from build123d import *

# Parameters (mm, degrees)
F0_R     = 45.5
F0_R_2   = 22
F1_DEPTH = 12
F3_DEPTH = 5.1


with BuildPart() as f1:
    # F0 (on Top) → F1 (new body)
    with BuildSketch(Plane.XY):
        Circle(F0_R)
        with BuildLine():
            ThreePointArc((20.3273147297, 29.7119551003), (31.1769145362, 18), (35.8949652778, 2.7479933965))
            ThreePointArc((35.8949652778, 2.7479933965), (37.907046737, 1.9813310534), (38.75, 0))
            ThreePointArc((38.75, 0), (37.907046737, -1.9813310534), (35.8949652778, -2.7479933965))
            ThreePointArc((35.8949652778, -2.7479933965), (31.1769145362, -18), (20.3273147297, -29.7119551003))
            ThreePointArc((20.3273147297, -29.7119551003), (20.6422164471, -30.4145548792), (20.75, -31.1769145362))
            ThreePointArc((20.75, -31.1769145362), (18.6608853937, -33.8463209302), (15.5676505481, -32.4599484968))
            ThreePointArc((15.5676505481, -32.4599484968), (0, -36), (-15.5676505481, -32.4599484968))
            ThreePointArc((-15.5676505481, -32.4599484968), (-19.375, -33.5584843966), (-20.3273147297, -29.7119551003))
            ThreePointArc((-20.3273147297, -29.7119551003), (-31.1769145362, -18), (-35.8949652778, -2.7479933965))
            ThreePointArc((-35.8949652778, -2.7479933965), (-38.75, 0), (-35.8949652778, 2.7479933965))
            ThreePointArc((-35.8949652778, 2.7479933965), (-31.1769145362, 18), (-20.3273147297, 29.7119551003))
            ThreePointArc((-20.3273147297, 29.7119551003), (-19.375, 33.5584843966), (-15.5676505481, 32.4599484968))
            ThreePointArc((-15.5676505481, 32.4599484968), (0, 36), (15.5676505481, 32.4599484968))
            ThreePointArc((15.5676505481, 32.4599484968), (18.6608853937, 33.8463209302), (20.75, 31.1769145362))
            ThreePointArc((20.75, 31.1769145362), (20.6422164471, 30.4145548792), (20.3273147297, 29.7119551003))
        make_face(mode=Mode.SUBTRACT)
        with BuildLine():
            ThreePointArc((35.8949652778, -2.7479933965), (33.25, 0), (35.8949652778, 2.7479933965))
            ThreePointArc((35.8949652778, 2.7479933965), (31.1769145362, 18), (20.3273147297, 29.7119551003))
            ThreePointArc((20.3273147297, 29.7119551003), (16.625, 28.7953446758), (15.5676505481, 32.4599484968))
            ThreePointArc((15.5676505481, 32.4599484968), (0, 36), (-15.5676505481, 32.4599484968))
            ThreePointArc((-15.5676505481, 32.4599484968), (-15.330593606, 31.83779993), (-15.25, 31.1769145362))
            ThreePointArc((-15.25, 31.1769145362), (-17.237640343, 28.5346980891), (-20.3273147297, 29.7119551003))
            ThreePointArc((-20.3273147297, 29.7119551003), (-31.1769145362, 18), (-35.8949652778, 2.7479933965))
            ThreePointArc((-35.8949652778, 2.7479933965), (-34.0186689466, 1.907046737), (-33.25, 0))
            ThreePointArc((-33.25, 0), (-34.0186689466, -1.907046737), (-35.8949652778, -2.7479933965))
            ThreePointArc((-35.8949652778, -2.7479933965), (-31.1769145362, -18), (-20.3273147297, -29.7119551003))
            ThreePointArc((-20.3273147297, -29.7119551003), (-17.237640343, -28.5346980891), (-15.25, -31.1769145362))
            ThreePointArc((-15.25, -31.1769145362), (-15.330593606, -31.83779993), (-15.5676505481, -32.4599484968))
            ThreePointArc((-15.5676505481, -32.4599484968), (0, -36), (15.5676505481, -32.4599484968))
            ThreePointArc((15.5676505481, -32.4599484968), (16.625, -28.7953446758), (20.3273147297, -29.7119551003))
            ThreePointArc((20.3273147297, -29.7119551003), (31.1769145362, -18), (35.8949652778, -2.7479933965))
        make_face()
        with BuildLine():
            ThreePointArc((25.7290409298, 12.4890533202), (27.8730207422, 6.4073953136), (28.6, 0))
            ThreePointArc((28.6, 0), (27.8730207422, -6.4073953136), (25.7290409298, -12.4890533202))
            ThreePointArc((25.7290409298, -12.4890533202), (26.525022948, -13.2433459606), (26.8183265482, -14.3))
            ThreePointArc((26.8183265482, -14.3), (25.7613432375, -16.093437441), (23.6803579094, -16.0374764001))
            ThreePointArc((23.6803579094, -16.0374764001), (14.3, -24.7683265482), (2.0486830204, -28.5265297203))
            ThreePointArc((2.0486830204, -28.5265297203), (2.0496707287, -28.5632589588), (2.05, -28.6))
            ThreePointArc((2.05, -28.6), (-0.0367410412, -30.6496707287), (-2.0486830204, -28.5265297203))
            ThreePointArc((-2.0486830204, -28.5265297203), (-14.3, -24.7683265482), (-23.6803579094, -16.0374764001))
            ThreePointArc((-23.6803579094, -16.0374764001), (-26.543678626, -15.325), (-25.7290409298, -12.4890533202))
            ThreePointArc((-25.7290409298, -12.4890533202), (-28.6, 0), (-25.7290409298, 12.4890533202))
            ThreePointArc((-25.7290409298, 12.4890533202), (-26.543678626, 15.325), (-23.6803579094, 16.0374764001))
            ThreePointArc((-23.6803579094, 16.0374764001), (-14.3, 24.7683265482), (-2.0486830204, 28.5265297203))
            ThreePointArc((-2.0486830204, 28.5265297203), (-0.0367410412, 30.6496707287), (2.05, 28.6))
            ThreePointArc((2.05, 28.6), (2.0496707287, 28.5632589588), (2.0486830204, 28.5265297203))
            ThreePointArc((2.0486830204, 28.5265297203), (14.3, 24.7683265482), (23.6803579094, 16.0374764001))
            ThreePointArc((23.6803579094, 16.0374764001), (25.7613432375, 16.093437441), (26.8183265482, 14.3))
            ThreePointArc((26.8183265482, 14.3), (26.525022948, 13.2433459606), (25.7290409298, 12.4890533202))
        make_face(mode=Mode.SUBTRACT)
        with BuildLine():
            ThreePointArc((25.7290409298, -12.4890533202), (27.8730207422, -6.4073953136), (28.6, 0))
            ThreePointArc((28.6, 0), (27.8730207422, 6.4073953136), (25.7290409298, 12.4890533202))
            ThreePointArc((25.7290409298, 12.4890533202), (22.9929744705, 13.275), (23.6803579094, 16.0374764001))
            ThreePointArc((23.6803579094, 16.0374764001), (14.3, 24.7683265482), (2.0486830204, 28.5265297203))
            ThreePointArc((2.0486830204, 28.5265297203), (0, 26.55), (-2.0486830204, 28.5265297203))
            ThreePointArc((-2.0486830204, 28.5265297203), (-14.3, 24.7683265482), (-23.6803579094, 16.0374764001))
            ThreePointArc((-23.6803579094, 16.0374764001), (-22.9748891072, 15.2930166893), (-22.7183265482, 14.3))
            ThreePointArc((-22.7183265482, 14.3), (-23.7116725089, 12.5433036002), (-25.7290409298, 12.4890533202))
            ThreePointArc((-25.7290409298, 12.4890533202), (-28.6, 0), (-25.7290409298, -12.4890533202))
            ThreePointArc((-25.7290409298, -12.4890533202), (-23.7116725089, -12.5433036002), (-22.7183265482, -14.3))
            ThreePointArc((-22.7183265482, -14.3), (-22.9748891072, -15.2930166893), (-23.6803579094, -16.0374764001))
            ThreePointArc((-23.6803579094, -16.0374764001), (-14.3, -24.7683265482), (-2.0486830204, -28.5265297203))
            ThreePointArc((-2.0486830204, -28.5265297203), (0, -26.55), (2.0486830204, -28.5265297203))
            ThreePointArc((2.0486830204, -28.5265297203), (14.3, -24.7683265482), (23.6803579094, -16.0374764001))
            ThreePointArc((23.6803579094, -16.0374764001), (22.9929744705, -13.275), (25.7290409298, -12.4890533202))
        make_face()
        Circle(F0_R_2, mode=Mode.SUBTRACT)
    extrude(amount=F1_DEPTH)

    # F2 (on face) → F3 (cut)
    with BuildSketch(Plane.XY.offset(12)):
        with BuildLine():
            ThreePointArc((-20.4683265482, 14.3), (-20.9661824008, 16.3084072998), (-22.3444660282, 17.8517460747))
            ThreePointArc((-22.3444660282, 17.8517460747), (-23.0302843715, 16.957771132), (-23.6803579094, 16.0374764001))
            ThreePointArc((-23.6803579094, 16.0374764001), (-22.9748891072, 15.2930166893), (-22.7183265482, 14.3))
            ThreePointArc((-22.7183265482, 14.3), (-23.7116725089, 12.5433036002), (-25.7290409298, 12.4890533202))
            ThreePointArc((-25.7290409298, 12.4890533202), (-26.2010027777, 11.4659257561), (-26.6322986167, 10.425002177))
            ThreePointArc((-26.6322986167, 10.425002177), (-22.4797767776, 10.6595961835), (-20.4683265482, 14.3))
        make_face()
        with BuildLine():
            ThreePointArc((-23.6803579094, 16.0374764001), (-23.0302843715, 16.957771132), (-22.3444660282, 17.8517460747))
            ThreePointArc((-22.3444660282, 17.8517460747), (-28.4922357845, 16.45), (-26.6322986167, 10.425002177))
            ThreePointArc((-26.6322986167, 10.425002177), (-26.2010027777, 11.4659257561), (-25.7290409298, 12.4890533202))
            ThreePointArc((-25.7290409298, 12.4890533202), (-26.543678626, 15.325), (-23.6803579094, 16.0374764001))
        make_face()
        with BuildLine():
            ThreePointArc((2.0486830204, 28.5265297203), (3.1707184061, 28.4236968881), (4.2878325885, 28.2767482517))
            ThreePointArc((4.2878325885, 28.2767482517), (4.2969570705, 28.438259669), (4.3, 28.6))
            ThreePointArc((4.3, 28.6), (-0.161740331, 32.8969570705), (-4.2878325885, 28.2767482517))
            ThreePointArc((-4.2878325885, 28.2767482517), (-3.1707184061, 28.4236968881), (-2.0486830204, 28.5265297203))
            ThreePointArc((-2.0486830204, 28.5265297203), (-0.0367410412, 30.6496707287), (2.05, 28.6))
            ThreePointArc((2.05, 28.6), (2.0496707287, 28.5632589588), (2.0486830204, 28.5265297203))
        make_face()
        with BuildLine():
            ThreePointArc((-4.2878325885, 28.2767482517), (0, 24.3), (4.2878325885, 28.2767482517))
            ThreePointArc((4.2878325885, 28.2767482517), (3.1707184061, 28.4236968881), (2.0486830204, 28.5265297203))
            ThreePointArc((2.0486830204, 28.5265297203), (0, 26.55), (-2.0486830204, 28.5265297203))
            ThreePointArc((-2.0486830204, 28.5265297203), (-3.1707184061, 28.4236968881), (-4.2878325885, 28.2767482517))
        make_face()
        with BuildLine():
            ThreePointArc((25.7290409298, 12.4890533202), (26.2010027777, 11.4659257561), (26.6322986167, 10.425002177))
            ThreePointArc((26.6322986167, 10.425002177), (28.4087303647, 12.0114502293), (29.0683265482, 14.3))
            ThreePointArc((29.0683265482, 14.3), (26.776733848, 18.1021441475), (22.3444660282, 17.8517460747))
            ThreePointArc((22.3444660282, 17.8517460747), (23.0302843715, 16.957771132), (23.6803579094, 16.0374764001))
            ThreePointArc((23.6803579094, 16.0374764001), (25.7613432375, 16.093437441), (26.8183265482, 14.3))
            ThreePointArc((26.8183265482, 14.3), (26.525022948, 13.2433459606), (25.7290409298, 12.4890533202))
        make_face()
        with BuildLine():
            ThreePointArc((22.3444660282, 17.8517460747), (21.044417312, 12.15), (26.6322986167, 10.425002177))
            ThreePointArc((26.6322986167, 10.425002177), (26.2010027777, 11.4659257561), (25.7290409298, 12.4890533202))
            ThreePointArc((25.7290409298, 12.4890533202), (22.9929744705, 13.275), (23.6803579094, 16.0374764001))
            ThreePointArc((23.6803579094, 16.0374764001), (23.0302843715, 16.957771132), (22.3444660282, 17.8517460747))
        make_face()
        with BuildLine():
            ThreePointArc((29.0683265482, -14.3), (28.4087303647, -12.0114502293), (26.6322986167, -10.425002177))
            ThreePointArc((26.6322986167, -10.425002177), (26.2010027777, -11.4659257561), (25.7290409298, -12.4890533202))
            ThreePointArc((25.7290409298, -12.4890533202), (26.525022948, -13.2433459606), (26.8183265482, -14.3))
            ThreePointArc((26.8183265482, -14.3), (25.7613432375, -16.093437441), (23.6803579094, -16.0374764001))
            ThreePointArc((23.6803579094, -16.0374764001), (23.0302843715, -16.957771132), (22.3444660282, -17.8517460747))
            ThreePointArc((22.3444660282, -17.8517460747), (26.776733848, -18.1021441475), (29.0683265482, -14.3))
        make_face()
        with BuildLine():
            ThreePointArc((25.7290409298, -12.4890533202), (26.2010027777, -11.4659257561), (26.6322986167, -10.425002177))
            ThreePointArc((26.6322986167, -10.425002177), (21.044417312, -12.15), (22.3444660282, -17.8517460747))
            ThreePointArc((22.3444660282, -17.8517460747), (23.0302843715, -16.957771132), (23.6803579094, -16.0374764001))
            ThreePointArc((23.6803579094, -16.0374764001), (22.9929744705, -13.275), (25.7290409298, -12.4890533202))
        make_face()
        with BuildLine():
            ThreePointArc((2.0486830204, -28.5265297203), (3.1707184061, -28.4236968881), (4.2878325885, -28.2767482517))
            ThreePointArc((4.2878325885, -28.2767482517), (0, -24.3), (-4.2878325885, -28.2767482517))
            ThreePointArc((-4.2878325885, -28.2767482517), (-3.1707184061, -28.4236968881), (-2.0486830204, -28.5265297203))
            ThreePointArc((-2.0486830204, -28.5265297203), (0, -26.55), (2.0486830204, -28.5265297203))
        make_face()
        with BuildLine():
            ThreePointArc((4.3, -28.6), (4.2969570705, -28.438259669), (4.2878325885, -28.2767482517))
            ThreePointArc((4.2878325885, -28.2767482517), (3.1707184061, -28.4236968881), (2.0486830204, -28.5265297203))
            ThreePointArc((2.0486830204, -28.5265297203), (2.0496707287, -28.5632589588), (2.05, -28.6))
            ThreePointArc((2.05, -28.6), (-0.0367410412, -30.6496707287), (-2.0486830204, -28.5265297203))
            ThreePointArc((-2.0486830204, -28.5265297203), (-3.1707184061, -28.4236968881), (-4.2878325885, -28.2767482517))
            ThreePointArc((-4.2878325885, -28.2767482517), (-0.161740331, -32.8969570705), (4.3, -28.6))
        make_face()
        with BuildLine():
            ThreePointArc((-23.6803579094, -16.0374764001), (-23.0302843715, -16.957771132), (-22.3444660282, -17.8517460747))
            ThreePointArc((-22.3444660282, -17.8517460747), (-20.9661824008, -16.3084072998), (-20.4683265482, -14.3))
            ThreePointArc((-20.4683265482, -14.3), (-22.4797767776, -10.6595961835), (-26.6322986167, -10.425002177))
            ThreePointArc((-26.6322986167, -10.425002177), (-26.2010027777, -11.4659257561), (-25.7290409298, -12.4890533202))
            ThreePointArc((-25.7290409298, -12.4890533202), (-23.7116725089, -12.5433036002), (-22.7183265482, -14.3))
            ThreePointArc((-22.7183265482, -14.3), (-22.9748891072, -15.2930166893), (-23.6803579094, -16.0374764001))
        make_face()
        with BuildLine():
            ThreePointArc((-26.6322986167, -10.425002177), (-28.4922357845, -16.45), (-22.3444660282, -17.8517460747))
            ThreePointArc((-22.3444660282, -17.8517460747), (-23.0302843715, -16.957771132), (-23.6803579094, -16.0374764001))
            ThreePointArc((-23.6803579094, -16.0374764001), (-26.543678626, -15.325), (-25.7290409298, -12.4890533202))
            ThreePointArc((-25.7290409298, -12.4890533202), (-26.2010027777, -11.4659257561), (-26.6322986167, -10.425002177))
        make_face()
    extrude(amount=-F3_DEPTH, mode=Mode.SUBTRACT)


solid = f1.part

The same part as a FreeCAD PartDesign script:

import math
import FreeCAD as App
import Part
import Sketcher
from FreeCAD import Vector
Q = App.Units.Quantity

doc = App.newDocument("Part")
body = doc.addObject("PartDesign::Body", "Body")

sketch1 = doc.addObject("Sketcher::SketchObject", "Sketch")
body.addObject(sketch1)
sketch1.AttachmentSupport = (doc.XY_Plane, [""])
sketch1.MapMode = "FlatFace"
sketch1.addGeometry(Part.Circle(Vector(0, 0, 0), Vector(0, 0, 1), 45.5), False)
sketch1.addGeometry(Part.ArcOfCircle(Part.Circle(Vector(-18, -31.18, 0), Vector(0, 0, 1), 2.75), math.radians(148), math.radians(332)), False)
sketch1.addGeometry(Part.ArcOfCircle(Part.Circle(Vector(-18, -31.18, 0), Vector(0, 0, 1), 2.75), math.radians(0), math.radians(148)), False)
sketch1.addGeometry(Part.ArcOfCircle(Part.Circle(Vector(-18, -31.18, 0), Vector(0, 0, 1), 2.75), math.radians(-28), math.radians(0)), False)
sketch1.addGeometry(Part.ArcOfCircle(Part.Circle(Vector(0, -28.6, 0), Vector(0, 0, 1), 2.05), math.radians(178), math.radians(360)), False)
sketch1.addGeometry(Part.ArcOfCircle(Part.Circle(Vector(0, -28.6, 0), Vector(0, 0, 1), 2.05), math.radians(2), math.radians(178)), False)
sketch1.addGeometry(Part.ArcOfCircle(Part.Circle(Vector(0, -28.6, 0), Vector(0, 0, 1), 2.05), math.radians(0), math.radians(2.05)), False)
sketch1.addGeometry(Part.ArcOfCircle(Part.Circle(Vector(-24.77, -14.3, 0), Vector(0, 0, 1), 2.05), math.radians(118), math.radians(302)), False)
sketch1.addGeometry(Part.ArcOfCircle(Part.Circle(Vector(-24.77, -14.3, 0), Vector(0, 0, 1), 2.05), math.radians(0), math.radians(118)), False)
sketch1.addGeometry(Part.ArcOfCircle(Part.Circle(Vector(-24.77, -14.3, 0), Vector(0, 0, 1), 2.05), math.radians(-58), math.radians(0)), False)
sketch1.addGeometry(Part.ArcOfCircle(Part.Circle(Vector(-36, 0, 0), Vector(0, 0, 1), 2.75), math.radians(88), math.radians(272)), False)
sketch1.addGeometry(Part.ArcOfCircle(Part.Circle(Vector(-36, 0, 0), Vector(0, 0, 1), 2.75), math.radians(0), math.radians(88)), False)
sketch1.addGeometry(Part.ArcOfCircle(Part.Circle(Vector(-36, 0, 0), Vector(0, 0, 1), 2.75), math.radians(-88), math.radians(0)), False)
sketch1.addGeometry(Part.ArcOfCircle(Part.Circle(Vector(18, -31.18, 0), Vector(0, 0, 1), 2.75), math.radians(-152), math.radians(0)), False)
sketch1.addGeometry(Part.ArcOfCircle(Part.Circle(Vector(18, -31.18, 0), Vector(0, 0, 1), 2.75), math.radians(0), math.radians(208)), False)
sketch1.addGeometry(Part.ArcOfCircle(Part.Circle(Vector(24.77, -14.3, 0), Vector(0, 0, 1), 2.05), math.radians(-122), math.radians(0)), False)
sketch1.addGeometry(Part.ArcOfCircle(Part.Circle(Vector(24.77, -14.3, 0), Vector(0, 0, 1), 2.05), math.radians(62), math.radians(238)), False)
sketch1.addGeometry(Part.ArcOfCircle(Part.Circle(Vector(24.77, -14.3, 0), Vector(0, 0, 1), 2.05), math.radians(0), math.radians(62)), False)
sketch1.addGeometry(Part.ArcOfCircle(Part.Circle(Vector(36, 0, 0), Vector(0, 0, 1), 2.75), math.radians(-92), math.radians(0)), False)
sketch1.addGeometry(Part.ArcOfCircle(Part.Circle(Vector(36, 0, 0), Vector(0, 0, 1), 2.75), math.radians(92), math.radians(268)), False)
sketch1.addGeometry(Part.ArcOfCircle(Part.Circle(Vector(36, 0, 0), Vector(0, 0, 1), 2.75), math.radians(0), math.radians(92)), False)
sketch1.addGeometry(Part.ArcOfCircle(Part.Circle(Vector(-24.77, 14.3, 0), Vector(0, 0, 1), 2.05), math.radians(58), math.radians(242)), False)
sketch1.addGeometry(Part.ArcOfCircle(Part.Circle(Vector(-24.77, 14.3, 0), Vector(0, 0, 1), 2.05), math.radians(0), math.radians(58)), False)
sketch1.addGeometry(Part.ArcOfCircle(Part.Circle(Vector(-24.77, 14.3, 0), Vector(0, 0, 1), 2.05), math.radians(-118), math.radians(0)), False)
sketch1.addGeometry(Part.ArcOfCircle(Part.Circle(Vector(-18, 31.18, 0), Vector(0, 0, 1), 2.75), math.radians(28), math.radians(212)), False)
sketch1.addGeometry(Part.ArcOfCircle(Part.Circle(Vector(-18, 31.18, 0), Vector(0, 0, 1), 2.75), math.radians(0), math.radians(28)), False)
sketch1.addGeometry(Part.ArcOfCircle(Part.Circle(Vector(-18, 31.18, 0), Vector(0, 0, 1), 2.75), math.radians(-148), math.radians(0)), False)
sketch1.addGeometry(Part.ArcOfCircle(Part.Circle(Vector(0, 28.6, 0), Vector(0, 0, 1), 2.05), math.radians(-2.05), math.radians(0)), False)
sketch1.addGeometry(Part.ArcOfCircle(Part.Circle(Vector(0, 28.6, 0), Vector(0, 0, 1), 2.05), math.radians(-178), math.radians(-2)), False)
sketch1.addGeometry(Part.ArcOfCircle(Part.Circle(Vector(0, 28.6, 0), Vector(0, 0, 1), 2.05), math.radians(0), math.radians(182)), False)
sketch1.addGeometry(Part.Circle(Vector(0, 0, 0), Vector(0, 0, 1), 22), False)
sketch1.addGeometry(Part.ArcOfCircle(Part.Circle(Vector(24.77, 14.3, 0), Vector(0, 0, 1), 2.05), math.radians(-62), math.radians(0)), False)
sketch1.addGeometry(Part.ArcOfCircle(Part.Circle(Vector(24.77, 14.3, 0), Vector(0, 0, 1), 2.05), math.radians(122), math.radians(298)), False)
sketch1.addGeometry(Part.ArcOfCircle(Part.Circle(Vector(24.77, 14.3, 0), Vector(0, 0, 1), 2.05), math.radians(0), math.radians(122)), False)
sketch1.addGeometry(Part.ArcOfCircle(Part.Circle(Vector(18, 31.18, 0), Vector(0, 0, 1), 2.75), math.radians(152), math.radians(360)), False)
sketch1.addGeometry(Part.ArcOfCircle(Part.Circle(Vector(18, 31.18, 0), Vector(0, 0, 1), 2.75), math.radians(0), math.radians(152)), False)
sketch1.addConstraint(Sketcher.Constraint("Tangent", 1, 1, 2, 2))
sketch1.addConstraint(Sketcher.Constraint("Tangent", 2, 1, 3, 2))
sketch1.addConstraint(Sketcher.Constraint("Tangent", 3, 1, 1, 2))
sketch1.addConstraint(Sketcher.Constraint("Tangent", 4, 1, 5, 2))
sketch1.addConstraint(Sketcher.Constraint("Tangent", 5, 1, 6, 2))
sketch1.addConstraint(Sketcher.Constraint("Tangent", 6, 1, 4, 2))
sketch1.addConstraint(Sketcher.Constraint("Tangent", 7, 1, 8, 2))
sketch1.addConstraint(Sketcher.Constraint("Tangent", 8, 1, 9, 2))
sketch1.addConstraint(Sketcher.Constraint("Tangent", 9, 1, 7, 2))
sketch1.addConstraint(Sketcher.Constraint("Tangent", 10, 1, 11, 2))
sketch1.addConstraint(Sketcher.Constraint("Tangent", 11, 1, 12, 2))
sketch1.addConstraint(Sketcher.Constraint("Tangent", 12, 1, 10, 2))
sketch1.addConstraint(Sketcher.Constraint("Tangent", 13, 1, 14, 2))
sketch1.addConstraint(Sketcher.Constraint("Coincident", 14, 1, 13, 2))
sketch1.addConstraint(Sketcher.Constraint("Tangent", 15, 1, 16, 2))
sketch1.addConstraint(Sketcher.Constraint("Tangent", 16, 1, 17, 2))
sketch1.addConstraint(Sketcher.Constraint("Tangent", 17, 1, 15, 2))
sketch1.addConstraint(Sketcher.Constraint("Tangent", 18, 1, 19, 2))
sketch1.addConstraint(Sketcher.Constraint("Tangent", 19, 1, 20, 2))
sketch1.addConstraint(Sketcher.Constraint("Tangent", 20, 1, 18, 2))
sketch1.addConstraint(Sketcher.Constraint("Tangent", 21, 1, 22, 2))
sketch1.addConstraint(Sketcher.Constraint("Tangent", 22, 1, 23, 2))
sketch1.addConstraint(Sketcher.Constraint("Tangent", 23, 1, 21, 2))
sketch1.addConstraint(Sketcher.Constraint("Tangent", 24, 1, 25, 2))
sketch1.addConstraint(Sketcher.Constraint("Tangent", 25, 1, 26, 2))
sketch1.addConstraint(Sketcher.Constraint("Tangent", 26, 1, 24, 2))
sketch1.addConstraint(Sketcher.Constraint("Tangent", 27, 1, 28, 2))
sketch1.addConstraint(Sketcher.Constraint("Tangent", 28, 1, 29, 2))
sketch1.addConstraint(Sketcher.Constraint("Tangent", 29, 1, 27, 2))
sketch1.addConstraint(Sketcher.Constraint("Tangent", 31, 1, 32, 2))
sketch1.addConstraint(Sketcher.Constraint("Tangent", 32, 1, 33, 2))
sketch1.addConstraint(Sketcher.Constraint("Tangent", 33, 1, 31, 2))
sketch1.addConstraint(Sketcher.Constraint("Tangent", 34, 1, 35, 2))
sketch1.addConstraint(Sketcher.Constraint("Coincident", 35, 1, 34, 2))
sketch1.addConstraint(Sketcher.Constraint("Coincident", 0, 3, -1, 1))
sketch1.addConstraint(Sketcher.Constraint("Coincident", 30, 3, -1, 1))
sketch1.addConstraint(Sketcher.Constraint("Equal", 6, 7))
sketch1.addConstraint(Sketcher.Constraint("Equal", 3, 10))
sketch1.addConstraint(Sketcher.Constraint("Equal", 12, 13))
sketch1.addConstraint(Sketcher.Constraint("Equal", 9, 15))
sketch1.addConstraint(Sketcher.Constraint("Equal", 14, 18))
sketch1.addConstraint(Sketcher.Constraint("Equal", 17, 21))
sketch1.addConstraint(Sketcher.Constraint("Equal", 20, 24))
sketch1.addConstraint(Sketcher.Constraint("Equal", 23, 27))
sketch1.addConstraint(Sketcher.Constraint("Equal", 29, 31))
sketch1.addConstraint(Sketcher.Constraint("Equal", 26, 34))
sketch1.addConstraint(Sketcher.Constraint("Symmetric", 10, 3, 18, 3, -1, 1))
sketch1.addConstraint(Sketcher.Constraint("Symmetric", 15, 3, 21, 3, -1, 1))
sketch1.addConstraint(Sketcher.Constraint("Symmetric", 13, 3, 24, 3, -1, 1))
sketch1.addConstraint(Sketcher.Constraint("Symmetric", 4, 3, 27, 3, -1, 1))
sketch1.addConstraint(Sketcher.Constraint("Symmetric", 7, 3, 31, 3, -1, 1))
sketch1.addConstraint(Sketcher.Constraint("Symmetric", 1, 3, 34, 3, -1, 1))
sketch1.addConstraint(Sketcher.Constraint("Symmetric", 1, 3, 13, 3, -2))
sketch1.addConstraint(Sketcher.Constraint("Symmetric", 7, 3, 15, 3, -2))
sketch1.addConstraint(Sketcher.Constraint("Symmetric", 4, 1, 5, 1, -2))
sketch1.addConstraint(Sketcher.Constraint("Symmetric", 12, 1, 18, 1, -2))
sketch1.addConstraint(Sketcher.Constraint("PointOnObject", 11, 1, -1))
sketch1.addConstraint(Sketcher.Constraint("PointOnObject", 20, 1, -1))
sketch1.addConstraint(Sketcher.Constraint("Horizontal", 14, 3, 2, 1))
sketch1.addConstraint(Sketcher.Constraint("Horizontal", 5, 3, 6, 1))
sketch1.addConstraint(Sketcher.Constraint("Horizontal", 17, 3, 8, 1))
sketch1.addConstraint(Sketcher.Constraint("Horizontal", 3, 1, 13, 1))
sketch1.addConstraint(Sketcher.Constraint("Horizontal", 2, 1, 14, 1))
sketch1.addConstraint(Sketcher.Constraint("Horizontal", 9, 1, 15, 1))
sketch1.addConstraint(Sketcher.Constraint("Horizontal", 7, 1, 16, 1))
sketch1.addConstraint(Sketcher.Constraint("Horizontal", 8, 1, 17, 1))
sketch1.addConstraint(Sketcher.Constraint("Horizontal", 10, 1, 19, 1))
sketch1.addConstraint(Sketcher.Constraint("Horizontal", 33, 3, 22, 1))
sketch1.addConstraint(Sketcher.Constraint("Horizontal", 35, 3, 25, 1))
sketch1.addConstraint(Sketcher.Constraint("Horizontal", 27, 1, 28, 1))
sketch1.addConstraint(Sketcher.Constraint("Horizontal", 28, 3, 29, 1))
sketch1.addConstraint(Sketcher.Constraint("Horizontal", 23, 1, 31, 1))
sketch1.addConstraint(Sketcher.Constraint("Horizontal", 21, 1, 32, 1))
sketch1.addConstraint(Sketcher.Constraint("Horizontal", 22, 1, 33, 1))
sketch1.addConstraint(Sketcher.Constraint("Horizontal", 24, 1, 34, 1))
sketch1.addConstraint(Sketcher.Constraint("Horizontal", 25, 1, 35, 1))
sketch1.addConstraint(Sketcher.Constraint("Vertical", 10, 1, 12, 1))
sketch1.addConstraint(Sketcher.Constraint("Vertical", 9, 1, 21, 1))
sketch1.addConstraint(Sketcher.Constraint("Vertical", 7, 1, 23, 1))
sketch1.addConstraint(Sketcher.Constraint("Vertical", 3, 1, 24, 1))
sketch1.addConstraint(Sketcher.Constraint("Vertical", 1, 1, 26, 1))
sketch1.addConstraint(Sketcher.Constraint("Vertical", 5, 1, 27, 1))
sketch1.addConstraint(Sketcher.Constraint("Diameter", 0, Q("91 mm")))
sketch1.addConstraint(Sketcher.Constraint("Diameter", 30, Q("44 mm")))
sketch1.addConstraint(Sketcher.Constraint("Radius", 1, Q("2.75 mm")))
sketch1.addConstraint(Sketcher.Constraint("Radius", 4, Q("2.05 mm")))
sketch1.addConstraint(Sketcher.Constraint("DistanceX", 1, 3, -1, 1, Q("18 mm")))
sketch1.addConstraint(Sketcher.Constraint("DistanceX", 10, 3, -1, 1, Q("36 mm")))
sketch1.addConstraint(Sketcher.Constraint("DistanceY", 4, 3, -1, 1, Q("28.6 mm")))
sketch1.addConstraint(Sketcher.Constraint("DistanceY", 7, 3, -1, 1, Q("14.3 mm")))
sketch1.addConstraint(Sketcher.Constraint("DistanceX", 3, 1, -1, 1, Q("15.567651 mm")))
sketch1.addConstraint(Sketcher.Constraint("DistanceY", 3, 1, -1, 1, Q("32.459948 mm")))
sketch1.addConstraint(Sketcher.Constraint("DistanceY", 4, 1, -1, 1, Q("28.52653 mm")))
sketch1.addConstraint(Sketcher.Constraint("DistanceX", 7, 1, -1, 1, Q("25.729041 mm")))
sketch1.addConstraint(Sketcher.Constraint("DistanceX", 7, 3, -1, 1, Q("24.768327 mm")))
sketch1.addConstraint(Sketcher.Constraint("DistanceX", 1, 1, -1, 1, Q("20.327315 mm")))
sketch1.addConstraint(Sketcher.Constraint("DistanceX", 9, 1, -1, 1, Q("23.680358 mm")))
sketch1.addConstraint(Sketcher.Constraint("DistanceX", 10, 1, -1, 1, Q("35.894965 mm")))
pad1 = doc.addObject("PartDesign::Pad", "Pad")
body.addObject(pad1)
pad1.Profile = sketch1
pad1.Length = 12

sketch2 = doc.addObject("Sketcher::SketchObject", "Sketch001")
body.addObject(sketch2)
sketch2.AttachmentSupport = (doc.XY_Plane, [""])
sketch2.MapMode = "FlatFace"
sketch2.AttachmentOffset = App.Placement(Vector(0, 0, 12), App.Rotation())
sketch2.addGeometry(Part.ArcOfCircle(Part.Circle(Vector(-24.77, 14.3, 0), Vector(0, 0, 1), 4.3), math.radians(0), math.radians(56)), False)
sketch2.addGeometry(Part.ArcOfCircle(Part.Circle(Vector(-24.77, 14.3, 0), Vector(0, 0, 1), 4.3), math.radians(56), math.radians(244)), False)
sketch2.addGeometry(Part.ArcOfCircle(Part.Circle(Vector(-24.77, 14.3, 0), Vector(0, 0, 1), 4.3), math.radians(-116), math.radians(0)), False)
sketch2.addGeometry(Part.ArcOfCircle(Part.Circle(Vector(-24.77, 14.3, 0), Vector(0, 0, 1), 2.05), math.radians(0), math.radians(58)), False)
sketch2.addGeometry(Part.ArcOfCircle(Part.Circle(Vector(-24.77, 14.3, 0), Vector(0, 0, 1), 2.05), math.radians(-118), math.radians(0)), False)
sketch2.addGeometry(Part.ArcOfCircle(Part.Circle(Vector(-24.77, 14.3, 0), Vector(0, 0, 1), 2.05), math.radians(58), math.radians(242)), False)
sketch2.addGeometry(Part.ArcOfCircle(Part.Circle(Vector(0, 28.6, 0), Vector(0, 0, 1), 4.3), math.radians(-4.31), math.radians(0)), False)
sketch2.addGeometry(Part.ArcOfCircle(Part.Circle(Vector(0, 28.6, 0), Vector(0, 0, 1), 4.3), math.radians(0), math.radians(184)), False)
sketch2.addGeometry(Part.ArcOfCircle(Part.Circle(Vector(0, 28.6, 0), Vector(0, 0, 1), 4.3), math.radians(-176), math.radians(-4)), False)
sketch2.addGeometry(Part.ArcOfCircle(Part.Circle(Vector(0, 28.6, 0), Vector(0, 0, 1), 2.05), math.radians(0), math.radians(182)), False)
sketch2.addGeometry(Part.ArcOfCircle(Part.Circle(Vector(0, 28.6, 0), Vector(0, 0, 1), 2.05), math.radians(-2.05), math.radians(0)), False)
sketch2.addGeometry(Part.ArcOfCircle(Part.Circle(Vector(0, 28.6, 0), Vector(0, 0, 1), 2.05), math.radians(-178), math.radians(-2)), False)
sketch2.addGeometry(Part.ArcOfCircle(Part.Circle(Vector(24.77, 14.3, 0), Vector(0, 0, 1), 4.3), math.radians(-64), math.radians(0)), False)
sketch2.addGeometry(Part.ArcOfCircle(Part.Circle(Vector(24.77, 14.3, 0), Vector(0, 0, 1), 4.3), math.radians(0), math.radians(124)), False)
sketch2.addGeometry(Part.ArcOfCircle(Part.Circle(Vector(24.77, 14.3, 0), Vector(0, 0, 1), 4.3), math.radians(124), math.radians(296)), False)
sketch2.addGeometry(Part.ArcOfCircle(Part.Circle(Vector(24.77, 14.3, 0), Vector(0, 0, 1), 2.05), math.radians(0), math.radians(122)), False)
sketch2.addGeometry(Part.ArcOfCircle(Part.Circle(Vector(24.77, 14.3, 0), Vector(0, 0, 1), 2.05), math.radians(-62), math.radians(0)), False)
sketch2.addGeometry(Part.ArcOfCircle(Part.Circle(Vector(24.77, 14.3, 0), Vector(0, 0, 1), 2.05), math.radians(122), math.radians(298)), False)
sketch2.addGeometry(Part.ArcOfCircle(Part.Circle(Vector(24.77, -14.3, 0), Vector(0, 0, 1), 4.3), math.radians(0), math.radians(64)), False)
sketch2.addGeometry(Part.ArcOfCircle(Part.Circle(Vector(24.77, -14.3, 0), Vector(0, 0, 1), 4.3), math.radians(64), math.radians(236)), False)
sketch2.addGeometry(Part.ArcOfCircle(Part.Circle(Vector(24.77, -14.3, 0), Vector(0, 0, 1), 4.3), math.radians(-124), math.radians(0)), False)
sketch2.addGeometry(Part.ArcOfCircle(Part.Circle(Vector(24.77, -14.3, 0), Vector(0, 0, 1), 2.05), math.radians(0), math.radians(62)), False)
sketch2.addGeometry(Part.ArcOfCircle(Part.Circle(Vector(24.77, -14.3, 0), Vector(0, 0, 1), 2.05), math.radians(-122), math.radians(0)), False)
sketch2.addGeometry(Part.ArcOfCircle(Part.Circle(Vector(24.77, -14.3, 0), Vector(0, 0, 1), 2.05), math.radians(62), math.radians(238)), False)
sketch2.addGeometry(Part.ArcOfCircle(Part.Circle(Vector(0, -28.6, 0), Vector(0, 0, 1), 4.3), math.radians(4), math.radians(176)), False)
sketch2.addGeometry(Part.ArcOfCircle(Part.Circle(Vector(0, -28.6, 0), Vector(0, 0, 1), 4.3), math.radians(176), math.radians(360)), False)
sketch2.addGeometry(Part.ArcOfCircle(Part.Circle(Vector(0, -28.6, 0), Vector(0, 0, 1), 4.3), math.radians(0), math.radians(4.31)), False)
sketch2.addGeometry(Part.ArcOfCircle(Part.Circle(Vector(0, -28.6, 0), Vector(0, 0, 1), 2.05), math.radians(2), math.radians(178)), False)
sketch2.addGeometry(Part.ArcOfCircle(Part.Circle(Vector(0, -28.6, 0), Vector(0, 0, 1), 2.05), math.radians(0), math.radians(2.05)), False)
sketch2.addGeometry(Part.ArcOfCircle(Part.Circle(Vector(0, -28.6, 0), Vector(0, 0, 1), 2.05), math.radians(178), math.radians(360)), False)
sketch2.addGeometry(Part.ArcOfCircle(Part.Circle(Vector(-24.77, -14.3, 0), Vector(0, 0, 1), 4.3), math.radians(-56), math.radians(0)), False)
sketch2.addGeometry(Part.ArcOfCircle(Part.Circle(Vector(-24.77, -14.3, 0), Vector(0, 0, 1), 4.3), math.radians(0), math.radians(116)), False)
sketch2.addGeometry(Part.ArcOfCircle(Part.Circle(Vector(-24.77, -14.3, 0), Vector(0, 0, 1), 4.3), math.radians(116), math.radians(304)), False)
sketch2.addGeometry(Part.ArcOfCircle(Part.Circle(Vector(-24.77, -14.3, 0), Vector(0, 0, 1), 2.05), math.radians(0), math.radians(118)), False)
sketch2.addGeometry(Part.ArcOfCircle(Part.Circle(Vector(-24.77, -14.3, 0), Vector(0, 0, 1), 2.05), math.radians(-58), math.radians(0)), False)
sketch2.addGeometry(Part.ArcOfCircle(Part.Circle(Vector(-24.77, -14.3, 0), Vector(0, 0, 1), 2.05), math.radians(118), math.radians(302)), False)
sketch2.addConstraint(Sketcher.Constraint("Tangent", 0, 2, 1, 1))
sketch2.addConstraint(Sketcher.Constraint("Tangent", 1, 2, 2, 1))
sketch2.addConstraint(Sketcher.Constraint("Tangent", 2, 2, 0, 1))
sketch2.addConstraint(Sketcher.Constraint("Tangent", 3, 1, 4, 2))
sketch2.addConstraint(Sketcher.Constraint("Tangent", 4, 1, 5, 2))
sketch2.addConstraint(Sketcher.Constraint("Tangent", 5, 1, 3, 2))
sketch2.addConstraint(Sketcher.Constraint("Tangent", 6, 2, 7, 1))
sketch2.addConstraint(Sketcher.Constraint("Tangent", 7, 2, 8, 1))
sketch2.addConstraint(Sketcher.Constraint("Tangent", 8, 2, 6, 1))
sketch2.addConstraint(Sketcher.Constraint("Tangent", 9, 1, 10, 2))
sketch2.addConstraint(Sketcher.Constraint("Tangent", 10, 1, 11, 2))
sketch2.addConstraint(Sketcher.Constraint("Tangent", 11, 1, 9, 2))
sketch2.addConstraint(Sketcher.Constraint("Tangent", 12, 2, 13, 1))
sketch2.addConstraint(Sketcher.Constraint("Tangent", 13, 2, 14, 1))
sketch2.addConstraint(Sketcher.Constraint("Tangent", 14, 2, 12, 1))
sketch2.addConstraint(Sketcher.Constraint("Tangent", 15, 1, 16, 2))
sketch2.addConstraint(Sketcher.Constraint("Tangent", 16, 1, 17, 2))
sketch2.addConstraint(Sketcher.Constraint("Tangent", 17, 1, 15, 2))
sketch2.addConstraint(Sketcher.Constraint("Tangent", 18, 2, 19, 1))
sketch2.addConstraint(Sketcher.Constraint("Tangent", 19, 2, 20, 1))
sketch2.addConstraint(Sketcher.Constraint("Tangent", 20, 2, 18, 1))
sketch2.addConstraint(Sketcher.Constraint("Tangent", 21, 1, 22, 2))
sketch2.addConstraint(Sketcher.Constraint("Tangent", 22, 1, 23, 2))
sketch2.addConstraint(Sketcher.Constraint("Tangent", 23, 1, 21, 2))
sketch2.addConstraint(Sketcher.Constraint("Tangent", 24, 2, 25, 1))
sketch2.addConstraint(Sketcher.Constraint("Tangent", 25, 2, 26, 1))
sketch2.addConstraint(Sketcher.Constraint("Tangent", 26, 2, 24, 1))
sketch2.addConstraint(Sketcher.Constraint("Tangent", 27, 1, 28, 2))
sketch2.addConstraint(Sketcher.Constraint("Tangent", 28, 1, 29, 2))
sketch2.addConstraint(Sketcher.Constraint("Tangent", 29, 1, 27, 2))
sketch2.addConstraint(Sketcher.Constraint("Tangent", 30, 2, 31, 1))
sketch2.addConstraint(Sketcher.Constraint("Tangent", 31, 2, 32, 1))
sketch2.addConstraint(Sketcher.Constraint("Tangent", 32, 2, 30, 1))
sketch2.addConstraint(Sketcher.Constraint("Tangent", 33, 1, 34, 2))
sketch2.addConstraint(Sketcher.Constraint("Tangent", 34, 1, 35, 2))
sketch2.addConstraint(Sketcher.Constraint("Tangent", 35, 1, 33, 2))
sketch2.addConstraint(Sketcher.Constraint("Coincident", 3, 3, 0, 3))
sketch2.addConstraint(Sketcher.Constraint("Coincident", 9, 3, 6, 3))
sketch2.addConstraint(Sketcher.Constraint("Coincident", 15, 3, 12, 3))
sketch2.addConstraint(Sketcher.Constraint("Coincident", 21, 3, 18, 3))
sketch2.addConstraint(Sketcher.Constraint("Coincident", 27, 3, 24, 3))
sketch2.addConstraint(Sketcher.Constraint("Coincident", 33, 3, 30, 3))
sketch2.addConstraint(Sketcher.Constraint("Equal", 2, 6))
sketch2.addConstraint(Sketcher.Constraint("Equal", 5, 9))
sketch2.addConstraint(Sketcher.Constraint("Equal", 8, 12))
sketch2.addConstraint(Sketcher.Constraint("Equal", 11, 15))
sketch2.addConstraint(Sketcher.Constraint("Equal", 14, 18))
sketch2.addConstraint(Sketcher.Constraint("Equal", 17, 21))
sketch2.addConstraint(Sketcher.Constraint("Equal", 20, 24))
sketch2.addConstraint(Sketcher.Constraint("Equal", 23, 27))
sketch2.addConstraint(Sketcher.Constraint("Equal", 26, 30))
sketch2.addConstraint(Sketcher.Constraint("Equal", 29, 33))
sketch2.addConstraint(Sketcher.Constraint("Symmetric", 0, 3, 18, 3, -1, 1))
sketch2.addConstraint(Sketcher.Constraint("Symmetric", 6, 3, 24, 3, -1, 1))
sketch2.addConstraint(Sketcher.Constraint("Symmetric", 12, 3, 30, 3, -1, 1))
sketch2.addConstraint(Sketcher.Constraint("Symmetric", 0, 3, 12, 3, -2))
sketch2.addConstraint(Sketcher.Constraint("Symmetric", 7, 2, 8, 2, -2))
sketch2.addConstraint(Sketcher.Constraint("Horizontal", 17, 3, 2, 2))
sketch2.addConstraint(Sketcher.Constraint("Horizontal", 2, 2, 3, 1))
sketch2.addConstraint(Sketcher.Constraint("Horizontal", 11, 3, 6, 2))
sketch2.addConstraint(Sketcher.Constraint("Horizontal", 6, 2, 9, 1))
sketch2.addConstraint(Sketcher.Constraint("Horizontal", 10, 1, 11, 1))
sketch2.addConstraint(Sketcher.Constraint("Horizontal", 3, 1, 12, 2))
sketch2.addConstraint(Sketcher.Constraint("Horizontal", 0, 2, 13, 2))
sketch2.addConstraint(Sketcher.Constraint("Horizontal", 1, 2, 14, 2))
sketch2.addConstraint(Sketcher.Constraint("Horizontal", 12, 2, 15, 1))
sketch2.addConstraint(Sketcher.Constraint("Horizontal", 4, 1, 16, 1))
sketch2.addConstraint(Sketcher.Constraint("Horizontal", 5, 1, 17, 1))
sketch2.addConstraint(Sketcher.Constraint("Horizontal", 35, 3, 20, 2))
sketch2.addConstraint(Sketcher.Constraint("Horizontal", 20, 2, 21, 1))
sketch2.addConstraint(Sketcher.Constraint("Horizontal", 29, 3, 25, 2))
sketch2.addConstraint(Sketcher.Constraint("Horizontal", 24, 2, 26, 2))
sketch2.addConstraint(Sketcher.Constraint("Horizontal", 25, 2, 28, 1))
sketch2.addConstraint(Sketcher.Constraint("Horizontal", 27, 1, 29, 1))
sketch2.addConstraint(Sketcher.Constraint("Horizontal", 21, 1, 30, 2))
sketch2.addConstraint(Sketcher.Constraint("Horizontal", 18, 2, 31, 2))
sketch2.addConstraint(Sketcher.Constraint("Horizontal", 19, 2, 32, 2))
sketch2.addConstraint(Sketcher.Constraint("Horizontal", 30, 2, 33, 1))
sketch2.addConstraint(Sketcher.Constraint("Horizontal", 22, 1, 34, 1))
sketch2.addConstraint(Sketcher.Constraint("Horizontal", 23, 1, 35, 1))
sketch2.addConstraint(Sketcher.Constraint("Vertical", 14, 2, 18, 2))
sketch2.addConstraint(Sketcher.Constraint("Vertical", 13, 2, 19, 2))
sketch2.addConstraint(Sketcher.Constraint("Vertical", 17, 1, 22, 1))
sketch2.addConstraint(Sketcher.Constraint("Vertical", 16, 1, 23, 1))
sketch2.addConstraint(Sketcher.Constraint("Vertical", 7, 2, 24, 2))
sketch2.addConstraint(Sketcher.Constraint("Vertical", 10, 1, 27, 1))
sketch2.addConstraint(Sketcher.Constraint("Radius", 0, Q("4.3 mm")))
sketch2.addConstraint(Sketcher.Constraint("Radius", 3, Q("2.05 mm")))
sketch2.addConstraint(Sketcher.Constraint("DistanceY", -1, 1, 0, 3, Q("14.3 mm")))
sketch2.addConstraint(Sketcher.Constraint("DistanceY", -1, 1, 6, 3, Q("28.6 mm")))
sketch2.addConstraint(Sketcher.Constraint("DistanceX", 1, 2, -1, 1, Q("26.632299 mm")))
sketch2.addConstraint(Sketcher.Constraint("DistanceX", 4, 1, -1, 1, Q("25.729041 mm")))
sketch2.addConstraint(Sketcher.Constraint("DistanceY", -1, 1, 7, 2, Q("28.276748 mm")))
sketch2.addConstraint(Sketcher.Constraint("DistanceY", -1, 1, 10, 1, Q("28.52653 mm")))
sketch2.addConstraint(Sketcher.Constraint("DistanceX", 0, 3, -1, 1, Q("24.768327 mm")))
sketch2.addConstraint(Sketcher.Constraint("DistanceX", 0, 2, -1, 1, Q("22.344466 mm")))
sketch2.addConstraint(Sketcher.Constraint("DistanceX", 5, 1, -1, 1, Q("23.680358 mm")))
pocket1 = doc.addObject("PartDesign::Pocket", "Pocket")
body.addObject(pocket1)
pocket1.Profile = sketch2
pocket1.Length = 5.1

doc.recompute()
